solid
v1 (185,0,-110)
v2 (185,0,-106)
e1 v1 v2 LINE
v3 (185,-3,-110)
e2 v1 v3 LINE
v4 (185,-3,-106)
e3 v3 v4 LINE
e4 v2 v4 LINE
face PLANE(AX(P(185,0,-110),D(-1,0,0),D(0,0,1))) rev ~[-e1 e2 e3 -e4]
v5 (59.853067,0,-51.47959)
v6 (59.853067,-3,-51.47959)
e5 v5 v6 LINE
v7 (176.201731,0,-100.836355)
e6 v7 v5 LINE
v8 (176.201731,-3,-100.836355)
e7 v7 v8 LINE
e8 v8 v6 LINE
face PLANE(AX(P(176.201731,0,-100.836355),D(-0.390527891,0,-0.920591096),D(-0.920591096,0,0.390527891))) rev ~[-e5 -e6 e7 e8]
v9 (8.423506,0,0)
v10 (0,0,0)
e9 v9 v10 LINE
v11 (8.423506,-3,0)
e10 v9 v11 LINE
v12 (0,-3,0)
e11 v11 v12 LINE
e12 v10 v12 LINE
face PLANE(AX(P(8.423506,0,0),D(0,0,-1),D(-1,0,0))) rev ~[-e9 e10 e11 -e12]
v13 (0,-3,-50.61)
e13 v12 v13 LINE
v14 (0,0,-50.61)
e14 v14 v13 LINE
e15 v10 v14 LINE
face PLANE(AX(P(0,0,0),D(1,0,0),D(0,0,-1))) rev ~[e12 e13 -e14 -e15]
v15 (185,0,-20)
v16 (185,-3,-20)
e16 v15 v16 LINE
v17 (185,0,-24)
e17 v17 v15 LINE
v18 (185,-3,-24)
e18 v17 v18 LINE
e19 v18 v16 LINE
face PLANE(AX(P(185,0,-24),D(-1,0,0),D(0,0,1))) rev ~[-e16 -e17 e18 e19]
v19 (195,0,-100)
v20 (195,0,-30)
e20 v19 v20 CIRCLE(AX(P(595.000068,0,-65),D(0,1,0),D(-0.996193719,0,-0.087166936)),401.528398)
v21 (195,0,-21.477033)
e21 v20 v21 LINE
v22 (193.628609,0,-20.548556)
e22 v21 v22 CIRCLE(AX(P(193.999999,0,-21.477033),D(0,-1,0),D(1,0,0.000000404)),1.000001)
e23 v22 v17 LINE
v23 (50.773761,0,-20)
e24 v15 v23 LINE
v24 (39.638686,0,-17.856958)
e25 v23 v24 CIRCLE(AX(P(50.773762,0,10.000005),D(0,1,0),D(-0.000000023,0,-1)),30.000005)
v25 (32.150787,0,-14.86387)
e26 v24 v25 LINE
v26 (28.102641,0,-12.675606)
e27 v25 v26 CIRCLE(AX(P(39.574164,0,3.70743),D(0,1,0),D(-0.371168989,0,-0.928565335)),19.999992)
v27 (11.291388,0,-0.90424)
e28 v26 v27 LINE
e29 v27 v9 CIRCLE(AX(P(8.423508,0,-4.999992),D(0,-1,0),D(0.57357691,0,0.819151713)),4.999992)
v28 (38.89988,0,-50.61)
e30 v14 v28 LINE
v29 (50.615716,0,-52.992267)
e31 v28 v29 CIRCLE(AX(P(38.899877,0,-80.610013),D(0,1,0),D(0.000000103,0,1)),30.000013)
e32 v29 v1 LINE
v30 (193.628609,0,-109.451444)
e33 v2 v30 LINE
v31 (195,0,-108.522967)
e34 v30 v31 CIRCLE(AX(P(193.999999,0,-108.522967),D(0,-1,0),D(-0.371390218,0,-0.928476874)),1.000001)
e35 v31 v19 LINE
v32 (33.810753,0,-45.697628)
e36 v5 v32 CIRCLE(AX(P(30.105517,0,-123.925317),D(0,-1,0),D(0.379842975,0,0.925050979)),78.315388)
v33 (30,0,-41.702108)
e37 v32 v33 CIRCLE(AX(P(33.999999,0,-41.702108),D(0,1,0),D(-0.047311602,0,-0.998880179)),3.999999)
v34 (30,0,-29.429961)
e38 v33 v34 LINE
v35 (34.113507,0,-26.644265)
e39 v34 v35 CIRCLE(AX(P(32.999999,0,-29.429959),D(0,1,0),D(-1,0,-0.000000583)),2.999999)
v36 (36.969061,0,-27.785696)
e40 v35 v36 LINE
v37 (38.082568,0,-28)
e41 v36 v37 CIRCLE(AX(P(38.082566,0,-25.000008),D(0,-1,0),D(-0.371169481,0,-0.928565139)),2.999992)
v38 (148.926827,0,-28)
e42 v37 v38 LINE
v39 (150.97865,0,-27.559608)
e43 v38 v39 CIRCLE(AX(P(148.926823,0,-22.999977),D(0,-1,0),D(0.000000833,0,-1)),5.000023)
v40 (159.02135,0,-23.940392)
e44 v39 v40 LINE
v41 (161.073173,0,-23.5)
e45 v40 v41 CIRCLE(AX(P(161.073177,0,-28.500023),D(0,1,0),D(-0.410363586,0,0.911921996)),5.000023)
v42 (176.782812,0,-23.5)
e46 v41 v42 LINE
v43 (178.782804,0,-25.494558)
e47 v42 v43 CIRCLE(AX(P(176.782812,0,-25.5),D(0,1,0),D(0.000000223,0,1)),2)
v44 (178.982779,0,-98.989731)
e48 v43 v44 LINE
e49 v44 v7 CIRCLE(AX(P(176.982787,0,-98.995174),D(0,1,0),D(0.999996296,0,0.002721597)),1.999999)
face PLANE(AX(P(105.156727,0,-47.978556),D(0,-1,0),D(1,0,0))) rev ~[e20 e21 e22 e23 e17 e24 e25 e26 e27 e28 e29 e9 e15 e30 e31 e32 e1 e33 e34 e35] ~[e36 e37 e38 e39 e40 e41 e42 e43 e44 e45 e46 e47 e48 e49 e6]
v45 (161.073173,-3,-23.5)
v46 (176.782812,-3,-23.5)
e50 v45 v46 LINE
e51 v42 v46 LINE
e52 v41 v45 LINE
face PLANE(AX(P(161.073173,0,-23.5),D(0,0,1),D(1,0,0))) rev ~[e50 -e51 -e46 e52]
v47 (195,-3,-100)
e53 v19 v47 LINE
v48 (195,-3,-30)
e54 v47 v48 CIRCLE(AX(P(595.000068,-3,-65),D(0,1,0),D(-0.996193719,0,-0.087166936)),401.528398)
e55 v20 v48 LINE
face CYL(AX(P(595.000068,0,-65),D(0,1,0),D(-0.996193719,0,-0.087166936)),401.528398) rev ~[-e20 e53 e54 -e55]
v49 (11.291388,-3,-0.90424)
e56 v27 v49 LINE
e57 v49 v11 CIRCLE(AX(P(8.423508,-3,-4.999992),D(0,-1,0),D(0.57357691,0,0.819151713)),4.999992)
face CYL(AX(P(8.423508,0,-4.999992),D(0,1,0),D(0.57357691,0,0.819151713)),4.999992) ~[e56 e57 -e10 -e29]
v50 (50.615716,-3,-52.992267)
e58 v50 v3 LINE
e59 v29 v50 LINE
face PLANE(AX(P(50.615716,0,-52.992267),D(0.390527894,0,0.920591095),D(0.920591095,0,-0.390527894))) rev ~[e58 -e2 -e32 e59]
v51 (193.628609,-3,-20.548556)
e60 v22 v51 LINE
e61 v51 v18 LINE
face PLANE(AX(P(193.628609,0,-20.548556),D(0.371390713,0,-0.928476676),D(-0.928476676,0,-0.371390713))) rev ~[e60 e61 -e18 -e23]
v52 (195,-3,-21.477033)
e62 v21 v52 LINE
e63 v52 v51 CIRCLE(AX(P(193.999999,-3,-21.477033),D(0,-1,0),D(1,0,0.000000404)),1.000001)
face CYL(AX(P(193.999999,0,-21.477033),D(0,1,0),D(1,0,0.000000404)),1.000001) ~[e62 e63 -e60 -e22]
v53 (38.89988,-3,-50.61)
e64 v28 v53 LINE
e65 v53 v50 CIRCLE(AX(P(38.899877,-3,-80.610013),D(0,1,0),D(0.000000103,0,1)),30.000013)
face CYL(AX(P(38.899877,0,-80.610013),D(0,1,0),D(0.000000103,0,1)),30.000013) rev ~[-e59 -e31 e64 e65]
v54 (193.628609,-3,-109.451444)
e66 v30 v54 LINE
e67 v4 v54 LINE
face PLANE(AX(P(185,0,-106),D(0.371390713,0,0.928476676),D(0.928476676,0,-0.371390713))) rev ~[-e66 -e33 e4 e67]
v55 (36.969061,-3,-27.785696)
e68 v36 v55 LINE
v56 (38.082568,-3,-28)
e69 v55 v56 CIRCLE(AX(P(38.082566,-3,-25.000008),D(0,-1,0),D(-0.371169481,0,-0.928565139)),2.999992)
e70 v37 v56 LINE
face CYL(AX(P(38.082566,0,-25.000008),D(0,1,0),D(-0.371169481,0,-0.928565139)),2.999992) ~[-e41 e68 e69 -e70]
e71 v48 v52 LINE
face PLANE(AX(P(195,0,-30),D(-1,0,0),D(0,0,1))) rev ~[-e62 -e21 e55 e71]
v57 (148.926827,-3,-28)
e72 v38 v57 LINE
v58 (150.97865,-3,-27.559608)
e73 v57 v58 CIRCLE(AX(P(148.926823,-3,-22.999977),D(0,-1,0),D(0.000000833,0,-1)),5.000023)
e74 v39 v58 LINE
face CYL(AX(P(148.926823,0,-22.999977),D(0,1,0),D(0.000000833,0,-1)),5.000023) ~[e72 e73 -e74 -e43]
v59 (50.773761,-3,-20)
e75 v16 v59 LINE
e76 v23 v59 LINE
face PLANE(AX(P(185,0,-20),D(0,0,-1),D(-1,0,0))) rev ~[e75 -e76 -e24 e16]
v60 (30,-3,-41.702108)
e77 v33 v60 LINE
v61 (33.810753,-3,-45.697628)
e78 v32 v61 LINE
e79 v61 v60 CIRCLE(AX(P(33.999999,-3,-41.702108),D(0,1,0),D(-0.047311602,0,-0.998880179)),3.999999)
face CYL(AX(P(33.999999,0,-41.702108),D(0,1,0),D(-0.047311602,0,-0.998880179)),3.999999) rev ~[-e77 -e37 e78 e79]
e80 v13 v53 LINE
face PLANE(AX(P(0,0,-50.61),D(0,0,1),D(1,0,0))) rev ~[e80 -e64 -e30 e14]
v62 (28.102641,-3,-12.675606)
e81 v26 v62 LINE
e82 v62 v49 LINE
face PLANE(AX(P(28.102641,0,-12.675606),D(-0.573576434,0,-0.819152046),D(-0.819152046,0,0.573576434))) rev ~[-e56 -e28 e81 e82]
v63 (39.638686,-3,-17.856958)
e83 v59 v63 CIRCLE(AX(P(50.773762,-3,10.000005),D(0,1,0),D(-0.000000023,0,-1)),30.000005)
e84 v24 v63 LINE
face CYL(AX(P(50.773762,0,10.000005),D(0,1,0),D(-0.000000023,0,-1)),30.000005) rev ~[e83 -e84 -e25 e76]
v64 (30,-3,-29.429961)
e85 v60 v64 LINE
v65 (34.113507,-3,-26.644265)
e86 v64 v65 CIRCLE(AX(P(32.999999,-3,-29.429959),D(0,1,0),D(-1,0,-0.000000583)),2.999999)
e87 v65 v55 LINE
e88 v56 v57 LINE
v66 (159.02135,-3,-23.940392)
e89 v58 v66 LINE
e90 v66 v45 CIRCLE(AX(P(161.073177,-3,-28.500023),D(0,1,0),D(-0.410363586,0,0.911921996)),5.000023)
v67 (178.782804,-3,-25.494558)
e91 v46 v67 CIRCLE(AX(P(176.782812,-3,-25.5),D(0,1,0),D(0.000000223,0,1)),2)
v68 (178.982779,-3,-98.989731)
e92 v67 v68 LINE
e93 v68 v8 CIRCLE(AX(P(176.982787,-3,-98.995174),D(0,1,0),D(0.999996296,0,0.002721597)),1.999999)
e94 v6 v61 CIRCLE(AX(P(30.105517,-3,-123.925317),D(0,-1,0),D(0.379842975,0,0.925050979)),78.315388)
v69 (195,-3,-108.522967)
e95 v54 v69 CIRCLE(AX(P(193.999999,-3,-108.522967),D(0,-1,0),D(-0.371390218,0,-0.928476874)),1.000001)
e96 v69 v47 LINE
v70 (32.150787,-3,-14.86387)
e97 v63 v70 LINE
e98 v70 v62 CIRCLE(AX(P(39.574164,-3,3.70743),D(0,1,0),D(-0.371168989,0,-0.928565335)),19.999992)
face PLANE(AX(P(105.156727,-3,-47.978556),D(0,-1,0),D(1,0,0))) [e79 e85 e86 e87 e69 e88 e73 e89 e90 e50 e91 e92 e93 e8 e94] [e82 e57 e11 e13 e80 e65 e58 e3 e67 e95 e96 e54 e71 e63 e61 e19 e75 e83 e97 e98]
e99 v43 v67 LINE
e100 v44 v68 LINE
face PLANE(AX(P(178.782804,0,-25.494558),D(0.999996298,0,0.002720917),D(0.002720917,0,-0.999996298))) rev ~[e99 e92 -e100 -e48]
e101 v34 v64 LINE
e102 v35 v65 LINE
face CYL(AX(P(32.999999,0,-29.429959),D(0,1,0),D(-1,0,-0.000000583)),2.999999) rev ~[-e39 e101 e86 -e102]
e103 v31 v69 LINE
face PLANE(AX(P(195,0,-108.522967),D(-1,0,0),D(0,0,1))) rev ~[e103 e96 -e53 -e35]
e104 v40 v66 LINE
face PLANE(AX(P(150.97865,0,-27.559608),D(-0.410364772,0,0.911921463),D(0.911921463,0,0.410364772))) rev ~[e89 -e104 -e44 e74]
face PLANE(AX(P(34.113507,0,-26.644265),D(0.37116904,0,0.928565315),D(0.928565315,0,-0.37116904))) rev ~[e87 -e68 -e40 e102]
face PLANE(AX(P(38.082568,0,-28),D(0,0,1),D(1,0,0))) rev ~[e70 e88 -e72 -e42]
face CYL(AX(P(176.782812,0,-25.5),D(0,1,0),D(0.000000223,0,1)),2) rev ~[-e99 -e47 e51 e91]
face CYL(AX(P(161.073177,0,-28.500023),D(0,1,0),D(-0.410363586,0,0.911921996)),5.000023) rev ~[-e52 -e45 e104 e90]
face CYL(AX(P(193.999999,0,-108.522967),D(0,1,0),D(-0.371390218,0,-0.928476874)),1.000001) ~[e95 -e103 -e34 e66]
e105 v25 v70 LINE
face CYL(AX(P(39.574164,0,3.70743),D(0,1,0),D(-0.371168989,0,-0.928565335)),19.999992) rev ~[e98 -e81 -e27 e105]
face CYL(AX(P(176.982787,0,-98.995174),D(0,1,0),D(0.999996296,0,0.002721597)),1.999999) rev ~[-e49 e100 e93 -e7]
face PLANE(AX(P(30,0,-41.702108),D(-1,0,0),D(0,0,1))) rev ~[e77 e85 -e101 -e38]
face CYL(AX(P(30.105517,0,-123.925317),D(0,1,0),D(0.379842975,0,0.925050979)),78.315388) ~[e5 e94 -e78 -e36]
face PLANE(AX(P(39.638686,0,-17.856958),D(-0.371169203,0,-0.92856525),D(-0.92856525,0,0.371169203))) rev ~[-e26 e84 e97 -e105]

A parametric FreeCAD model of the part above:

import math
import FreeCAD as App
import Part
import Sketcher

V = App.Vector

doc = App.newDocument("Part")
body = doc.addObject("PartDesign::Body", "Body")

# Sketch on XZ plane
sketch1 = body.newObject("Sketcher::SketchObject", "Sketch")
sketch1.AttachmentSupport = (doc.getObject("XZ_Plane"), [""])
sketch1.MapMode = "FlatFace"
sketch1.addGeometry([
    Part.LineSegment(V(8.423506, 0, 0), V(0, 0, 0)),  # 0
    Part.LineSegment(V(0, 0, 0), V(0, -50.61, 0)),  # 1
    Part.LineSegment(V(0, -50.61, 0), V(38.89988, -50.61, 0)),  # 2
    Part.ArcOfCircle(Part.Circle(V(38.899877, -80.610013, 0), V(0, 0, 1), 30.000013), math.radians(67.012655), math.radians(89.999994)),  # 3
    Part.LineSegment(V(50.615716, -52.992267, 0), V(185, -110, 0)),  # 4
    Part.LineSegment(V(185, -110, 0), V(185, -106, 0)),  # 5
    Part.LineSegment(V(185, -106, 0), V(193.628609, -109.451444, 0)),  # 6
    Part.ArcOfCircle(Part.Circle(V(193.999999, -108.522967, 0), V(0, 0, 1), 1.000001), math.radians(-111.801381), math.radians(-0.000023)),  # 7
    Part.LineSegment(V(195, -108.522967, 0), V(195, -100, 0)),  # 8
    Part.ArcOfCircle(Part.Circle(V(595.000068, -65, 0), V(0, 0, 1), 401.528398), math.radians(174.999356), math.radians(185.000644)),  # 9
    Part.LineSegment(V(195, -30, 0), V(195, -21.477033, 0)),  # 10
    Part.ArcOfCircle(Part.Circle(V(193.999999, -21.477033, 0), V(0, 0, 1), 1.000001), math.radians(0.000023), math.radians(111.801381)),  # 11
    Part.LineSegment(V(193.628609, -20.548556, 0), V(185, -24, 0)),  # 12
    Part.LineSegment(V(185, -24, 0), V(185, -20, 0)),  # 13
    Part.LineSegment(V(185, -20, 0), V(50.773761, -20, 0)),  # 14
    Part.ArcOfCircle(Part.Circle(V(50.773762, 10.000005, 0), V(0, 0, 1), 30.000005), math.radians(-111.787739), math.radians(-90.000001)),  # 15
    Part.LineSegment(V(39.638686, -17.856958, 0), V(32.150787, -14.86387, 0)),  # 16
    Part.ArcOfCircle(Part.Circle(V(39.574164, 3.70743, 0), V(0, 0, 1), 19.999992), math.radians(-124.999995), math.radians(-111.78773)),  # 17
    Part.LineSegment(V(28.102641, -12.675606, 0), V(11.291388, -0.90424, 0)),  # 18
    Part.ArcOfCircle(Part.Circle(V(8.423508, -4.999992, 0), V(0, 0, 1), 4.999992), math.radians(54.999967), math.radians(90.000023)),  # 19
    Part.LineSegment(V(176.201731, -100.836355, 0), V(59.853067, -51.47959, 0)),  # 20
    Part.ArcOfCircle(Part.Circle(V(30.105517, -123.925317, 0), V(0, 0, 1), 78.315388), math.radians(67.676044), math.radians(87.288226)),  # 21
    Part.ArcOfCircle(Part.Circle(V(33.999999, -41.702108, 0), V(0, 0, 1), 3.999999), math.radians(-179.999999), math.radians(-92.711767)),  # 22
    Part.LineSegment(V(30, -41.702108, 0), V(30, -29.429961, 0)),  # 23
    Part.ArcOfCircle(Part.Circle(V(32.999999, -29.429959, 0), V(0, 0, 1), 2.999999), math.radians(68.212236), math.radians(180.000033)),  # 24
    Part.LineSegment(V(34.113507, -26.644265, 0), V(36.969061, -27.785696, 0)),  # 25
    Part.ArcOfCircle(Part.Circle(V(38.082566, -25.000008, 0), V(0, 0, 1), 2.999992), math.radians(-111.78776), math.radians(-89.99997)),  # 26
    Part.LineSegment(V(38.082568, -28, 0), V(148.926827, -28, 0)),  # 27
    Part.ArcOfCircle(Part.Circle(V(148.926823, -22.999977, 0), V(0, 0, 1), 5.000023), math.radians(-89.999952), math.radians(-65.772323)),  # 28
    Part.LineSegment(V(150.97865, -27.559608, 0), V(159.02135, -23.940392, 0)),  # 29
    Part.ArcOfCircle(Part.Circle(V(161.073177, -28.500023, 0), V(0, 0, 1), 5.000023), math.radians(90.000048), math.radians(114.227677)),  # 30
    Part.LineSegment(V(161.073173, -23.5, 0), V(176.782812, -23.5, 0)),  # 31
    Part.ArcOfCircle(Part.Circle(V(176.782812, -25.5, 0), V(0, 0, 1), 2), math.radians(0.155898), math.radians(89.999987)),  # 32
    Part.LineSegment(V(178.782804, -25.494558, 0), V(178.982779, -98.989731, 0)),  # 33
    Part.ArcOfCircle(Part.Circle(V(176.982787, -98.995174, 0), V(0, 0, 1), 1.999999), math.radians(-112.987383), math.radians(0.155936)),  # 34
], False)
sketch1.addConstraint([
    Sketcher.Constraint("Coincident", 0, 2, 1, 1),
    Sketcher.Constraint("Coincident", 1, 2, 2, 1),
    Sketcher.Constraint("Coincident", 2, 2, 3, 2),
    Sketcher.Constraint("Coincident", 3, 1, 4, 1),
    Sketcher.Constraint("Coincident", 4, 2, 5, 1),
    Sketcher.Constraint("Coincident", 5, 2, 6, 1),
    Sketcher.Constraint("Coincident", 6, 2, 7, 1),
    Sketcher.Constraint("Coincident", 7, 2, 8, 1),
    Sketcher.Constraint("Coincident", 8, 2, 9, 2),
    Sketcher.Constraint("Coincident", 9, 1, 10, 1),
    Sketcher.Constraint("Coincident", 10, 2, 11, 1),
    Sketcher.Constraint("Coincident", 11, 2, 12, 1),
    Sketcher.Constraint("Coincident", 12, 2, 13, 1),
    Sketcher.Constraint("Coincident", 13, 2, 14, 1),
    Sketcher.Constraint("Coincident", 14, 2, 15, 2),
    Sketcher.Constraint("Coincident", 15, 1, 16, 1),
    Sketcher.Constraint("Coincident", 16, 2, 17, 2),
    Sketcher.Constraint("Coincident", 17, 1, 18, 1),
    Sketcher.Constraint("Coincident", 18, 2, 19, 1),
    Sketcher.Constraint("Coincident", 19, 2, 0, 1),
    Sketcher.Constraint("Coincident", 20, 2, 21, 1),
    Sketcher.Constraint("Coincident", 21, 2, 22, 2),
    Sketcher.Constraint("Coincident", 22, 1, 23, 1),
    Sketcher.Constraint("Coincident", 23, 2, 24, 2),
    Sketcher.Constraint("Coincident", 24, 1, 25, 1),
    Sketcher.Constraint("Coincident", 25, 2, 26, 1),
    Sketcher.Constraint("Coincident", 26, 2, 27, 1),
    Sketcher.Constraint("Coincident", 27, 2, 28, 1),
    Sketcher.Constraint("Coincident", 28, 2, 29, 1),
    Sketcher.Constraint("Coincident", 29, 2, 30, 2),
    Sketcher.Constraint("Coincident", 30, 1, 31, 1),
    Sketcher.Constraint("Coincident", 31, 2, 32, 2),
    Sketcher.Constraint("Coincident", 32, 1, 33, 1),
    Sketcher.Constraint("Coincident", 33, 2, 34, 2),
    Sketcher.Constraint("Coincident", 34, 1, 20, 1),
    Sketcher.Constraint("Horizontal", 0),
    Sketcher.Constraint("Vertical", 1),
    Sketcher.Constraint("Horizontal", 2),
    Sketcher.Constraint("Vertical", 5),
    Sketcher.Constraint("Vertical", 8),
    Sketcher.Constraint("Vertical", 10),
    Sketcher.Constraint("Vertical", 13),
    Sketcher.Constraint("Horizontal", 14),
    Sketcher.Constraint("Vertical", 23),
    Sketcher.Constraint("Horizontal", 27),
    Sketcher.Constraint("Horizontal", 31),
    Sketcher.Constraint("Coincident", 0, 2, -1, 1),
    Sketcher.Constraint("Radius", 7, 1.000001),
    Sketcher.Constraint("Radius", 11, 1.000001),
    Sketcher.Constraint("Radius", 22, 3.999999),
    Sketcher.Constraint("Radius", 24, 2.999999),
    Sketcher.Constraint("Radius", 32, 2.0),
    Sketcher.Constraint("Radius", 34, 1.999999),
    Sketcher.Constraint("DistanceY", 5, 1, 5, 2, 4.0),
    Sketcher.Constraint("DistanceY", 13, 1, 13, 2, 4.0),
    Sketcher.Constraint("DistanceX", -1, 1, 7, 3, 193.999999),
    Sketcher.Constraint("DistanceY", 9, 3, -1, 1, 65.0),
    Sketcher.Constraint("DistanceX", -1, 1, 11, 3, 193.999999),
    Sketcher.Constraint("DistanceX", -1, 1, 22, 3, 33.999999),
    Sketcher.Constraint("DistanceX", -1, 1, 4, 2, 185.0),
    Sketcher.Constraint("DistanceY", 4, 2, -1, 1, 110.0),
    Sketcher.Constraint("DistanceY", 8, 2, -1, 1, 100.0),
    Sketcher.Constraint("DistanceX", -1, 1, 12, 2, 185.0),
    Sketcher.Constraint("DistanceY", 12, 2, -1, 1, 24.0),
    Sketcher.Constraint("DistanceY", 26, 2, -1, 1, 28.0),
    Sketcher.Constraint("DistanceY", 1, 2, 1, 1, 50.61),
    Sketcher.Constraint("DistanceY", 32, 3, -1, 1, 25.5),
    Sketcher.Constraint("Radius", 21, 78.315388),
    Sketcher.Constraint("Radius", 26, 2.999992),
    Sketcher.Constraint("Radius", 3, 30.000013),
    Sketcher.Constraint("Radius", 9, 401.528398),
    Sketcher.Constraint("Radius", 15, 30.000005),
    Sketcher.Constraint("Radius", 17, 19.999992),
    Sketcher.Constraint("Radius", 19, 4.999992),
    Sketcher.Constraint("Radius", 28, 5.000023),
    Sketcher.Constraint("Radius", 30, 5.000023),
    Sketcher.Constraint("DistanceY", 24, 3, 15, 1, 11.573001),
    Sketcher.Constraint("DistanceY", 32, 1, 11, 2, 4.946002),
    Sketcher.Constraint("DistanceX", 2, 1, 2, 2, 38.89988),
    Sketcher.Constraint("DistanceX", 14, 2, 14, 1, 134.226239),
    Sketcher.Constraint("DistanceX", 27, 1, 27, 2, 110.844259),
    Sketcher.Constraint("DistanceX", 31, 1, 31, 2, 15.709639),
    Sketcher.Constraint("DistanceY", 22, 3, 26, 3, 16.7021),
    Sketcher.Constraint("DistanceX", 16, 2, 15, 1, 7.487899),
    Sketcher.Constraint("DistanceY", 16, 2, 17, 3, 18.5713),
    Sketcher.Constraint("DistanceX", 18, 2, 16, 2, 20.859399),
    Sketcher.Constraint("DistanceX", 26, 3, 20, 2, 21.770501),
    Sketcher.Constraint("DistanceY", 22, 1, 26, 3, 16.7021),
    Sketcher.Constraint("DistanceX", 28, 2, 29, 2, 8.0427),
    Sketcher.Constraint("Distance", 18, 20.52275),
    Sketcher.Constraint("Distance", 29, 8.819509),
    Sketcher.Constraint("DistanceX", 0, 2, 0, 1, 8.423506),
    Sketcher.Constraint("DistanceY", 8, 1, 8, 2, 8.522967),
    Sketcher.Constraint("DistanceY", 10, 1, 10, 2, 8.522967),
    Sketcher.Constraint("DistanceY", 23, 1, 23, 2, 12.272147),
    Sketcher.Constraint("DistanceX", -1, 1, 15, 3, 50.773762),
    Sketcher.Constraint("DistanceY", -1, 1, 17, 3, 3.70743),
    Sketcher.Constraint("DistanceX", -1, 1, 19, 3, 8.423508),
    Sketcher.Constraint("DistanceY", 24, 3, -1, 1, 29.429959),
    Sketcher.Constraint("DistanceX", -1, 1, 32, 3, 176.782812),
    Sketcher.Constraint("DistanceX", -1, 1, 6, 2, 193.628609),
    Sketcher.Constraint("DistanceX", -1, 1, 11, 2, 193.628609),
    Sketcher.Constraint("DistanceY", 20, 2, -1, 1, 51.47959),
    Sketcher.Constraint("DistanceY", 21, 2, -1, 1, 45.697628),
    Sketcher.Constraint("DistanceX", -1, 1, 25, 2, 36.969061),
    Sketcher.Constraint("DistanceX", -1, 1, 26, 2, 38.082568),
    Sketcher.Constraint("DistanceX", -1, 1, 28, 2, 150.97865),
    Sketcher.Constraint("DistanceY", 28, 2, -1, 1, 27.559608),
    Sketcher.Constraint("DistanceX", -1, 1, 31, 2, 176.782812),
    Sketcher.Constraint("DistanceX", -1, 1, 33, 2, 178.982779),
    Sketcher.Constraint("DistanceY", 33, 2, -1, 1, 98.989731),
    Sketcher.Constraint("DistanceX", -1, 1, 34, 1, 176.201731),
    Sketcher.Constraint("DistanceX", 3, 3, 9, 3, 556.100191),
    Sketcher.Constraint("DistanceY", 3, 3, 11, 3, 59.13298),
    Sketcher.Constraint("DistanceY", 7, 3, 15, 3, 118.522971),
    Sketcher.Constraint("DistanceX", 21, 3, 3, 3, 8.79436),
    Sketcher.Constraint("DistanceY", 34, 3, 30, 3, 70.495152),
    Sketcher.Constraint("DistanceY", 3, 1, 22, 3, 11.290159),
    Sketcher.Constraint("DistanceX", 24, 3, 24, 1, 1.113508),
])
pad1 = body.newObject("PartDesign::Pad", "Pad")
pad1.Profile = sketch1
pad1.Length = 3

doc.recompute()
